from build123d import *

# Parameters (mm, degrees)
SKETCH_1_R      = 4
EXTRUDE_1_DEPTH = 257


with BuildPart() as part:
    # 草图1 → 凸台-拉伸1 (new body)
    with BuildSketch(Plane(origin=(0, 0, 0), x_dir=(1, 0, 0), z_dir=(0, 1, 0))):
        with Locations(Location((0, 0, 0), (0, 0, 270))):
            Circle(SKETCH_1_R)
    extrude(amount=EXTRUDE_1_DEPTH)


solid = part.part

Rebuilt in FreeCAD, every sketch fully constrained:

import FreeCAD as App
import Part
import Sketcher
Q = App.Units.Quantity

doc = App.newDocument("Part")
params = doc.addObject("Spreadsheet::Sheet", "Params")
for row, (alias, value) in enumerate([
    ("sketch1_diameter", "8 mm"),
    ("pad1_length", "257 mm"),
], start=1):
    params.set(f"A{row}", alias)
    params.set(f"B{row}", "=" + value)
    params.setAlias(f"B{row}", alias)

body = doc.addObject("PartDesign::Body", "Body")

# Sketch on XZ plane
sketch1 = body.newObject("Sketcher::SketchObject", "Sketch")
sketch1.AttachmentSupport = (doc.getObject("XZ_Plane"), [""])
sketch1.MapMode = "FlatFace"
sketch1.addGeometry(Part.Circle(App.Vector(0, 0, 0), App.Vector(0, 0, 1), 4), False)
sketch1.addConstraint([
    Sketcher.Constraint("Coincident", 0, 3, -1, 1),
    Sketcher.Constraint("Diameter", 0, Q("8 mm")),
])
sketch1.setExpression("Constraints[1]", "Params.sketch1_diameter")
pad1 = body.newObject("PartDesign::Pad", "Pad")
pad1.Profile = sketch1
pad1.setExpression("Length", "Params.pad1_length")
pad1.Reversed = True

doc.recompute()
